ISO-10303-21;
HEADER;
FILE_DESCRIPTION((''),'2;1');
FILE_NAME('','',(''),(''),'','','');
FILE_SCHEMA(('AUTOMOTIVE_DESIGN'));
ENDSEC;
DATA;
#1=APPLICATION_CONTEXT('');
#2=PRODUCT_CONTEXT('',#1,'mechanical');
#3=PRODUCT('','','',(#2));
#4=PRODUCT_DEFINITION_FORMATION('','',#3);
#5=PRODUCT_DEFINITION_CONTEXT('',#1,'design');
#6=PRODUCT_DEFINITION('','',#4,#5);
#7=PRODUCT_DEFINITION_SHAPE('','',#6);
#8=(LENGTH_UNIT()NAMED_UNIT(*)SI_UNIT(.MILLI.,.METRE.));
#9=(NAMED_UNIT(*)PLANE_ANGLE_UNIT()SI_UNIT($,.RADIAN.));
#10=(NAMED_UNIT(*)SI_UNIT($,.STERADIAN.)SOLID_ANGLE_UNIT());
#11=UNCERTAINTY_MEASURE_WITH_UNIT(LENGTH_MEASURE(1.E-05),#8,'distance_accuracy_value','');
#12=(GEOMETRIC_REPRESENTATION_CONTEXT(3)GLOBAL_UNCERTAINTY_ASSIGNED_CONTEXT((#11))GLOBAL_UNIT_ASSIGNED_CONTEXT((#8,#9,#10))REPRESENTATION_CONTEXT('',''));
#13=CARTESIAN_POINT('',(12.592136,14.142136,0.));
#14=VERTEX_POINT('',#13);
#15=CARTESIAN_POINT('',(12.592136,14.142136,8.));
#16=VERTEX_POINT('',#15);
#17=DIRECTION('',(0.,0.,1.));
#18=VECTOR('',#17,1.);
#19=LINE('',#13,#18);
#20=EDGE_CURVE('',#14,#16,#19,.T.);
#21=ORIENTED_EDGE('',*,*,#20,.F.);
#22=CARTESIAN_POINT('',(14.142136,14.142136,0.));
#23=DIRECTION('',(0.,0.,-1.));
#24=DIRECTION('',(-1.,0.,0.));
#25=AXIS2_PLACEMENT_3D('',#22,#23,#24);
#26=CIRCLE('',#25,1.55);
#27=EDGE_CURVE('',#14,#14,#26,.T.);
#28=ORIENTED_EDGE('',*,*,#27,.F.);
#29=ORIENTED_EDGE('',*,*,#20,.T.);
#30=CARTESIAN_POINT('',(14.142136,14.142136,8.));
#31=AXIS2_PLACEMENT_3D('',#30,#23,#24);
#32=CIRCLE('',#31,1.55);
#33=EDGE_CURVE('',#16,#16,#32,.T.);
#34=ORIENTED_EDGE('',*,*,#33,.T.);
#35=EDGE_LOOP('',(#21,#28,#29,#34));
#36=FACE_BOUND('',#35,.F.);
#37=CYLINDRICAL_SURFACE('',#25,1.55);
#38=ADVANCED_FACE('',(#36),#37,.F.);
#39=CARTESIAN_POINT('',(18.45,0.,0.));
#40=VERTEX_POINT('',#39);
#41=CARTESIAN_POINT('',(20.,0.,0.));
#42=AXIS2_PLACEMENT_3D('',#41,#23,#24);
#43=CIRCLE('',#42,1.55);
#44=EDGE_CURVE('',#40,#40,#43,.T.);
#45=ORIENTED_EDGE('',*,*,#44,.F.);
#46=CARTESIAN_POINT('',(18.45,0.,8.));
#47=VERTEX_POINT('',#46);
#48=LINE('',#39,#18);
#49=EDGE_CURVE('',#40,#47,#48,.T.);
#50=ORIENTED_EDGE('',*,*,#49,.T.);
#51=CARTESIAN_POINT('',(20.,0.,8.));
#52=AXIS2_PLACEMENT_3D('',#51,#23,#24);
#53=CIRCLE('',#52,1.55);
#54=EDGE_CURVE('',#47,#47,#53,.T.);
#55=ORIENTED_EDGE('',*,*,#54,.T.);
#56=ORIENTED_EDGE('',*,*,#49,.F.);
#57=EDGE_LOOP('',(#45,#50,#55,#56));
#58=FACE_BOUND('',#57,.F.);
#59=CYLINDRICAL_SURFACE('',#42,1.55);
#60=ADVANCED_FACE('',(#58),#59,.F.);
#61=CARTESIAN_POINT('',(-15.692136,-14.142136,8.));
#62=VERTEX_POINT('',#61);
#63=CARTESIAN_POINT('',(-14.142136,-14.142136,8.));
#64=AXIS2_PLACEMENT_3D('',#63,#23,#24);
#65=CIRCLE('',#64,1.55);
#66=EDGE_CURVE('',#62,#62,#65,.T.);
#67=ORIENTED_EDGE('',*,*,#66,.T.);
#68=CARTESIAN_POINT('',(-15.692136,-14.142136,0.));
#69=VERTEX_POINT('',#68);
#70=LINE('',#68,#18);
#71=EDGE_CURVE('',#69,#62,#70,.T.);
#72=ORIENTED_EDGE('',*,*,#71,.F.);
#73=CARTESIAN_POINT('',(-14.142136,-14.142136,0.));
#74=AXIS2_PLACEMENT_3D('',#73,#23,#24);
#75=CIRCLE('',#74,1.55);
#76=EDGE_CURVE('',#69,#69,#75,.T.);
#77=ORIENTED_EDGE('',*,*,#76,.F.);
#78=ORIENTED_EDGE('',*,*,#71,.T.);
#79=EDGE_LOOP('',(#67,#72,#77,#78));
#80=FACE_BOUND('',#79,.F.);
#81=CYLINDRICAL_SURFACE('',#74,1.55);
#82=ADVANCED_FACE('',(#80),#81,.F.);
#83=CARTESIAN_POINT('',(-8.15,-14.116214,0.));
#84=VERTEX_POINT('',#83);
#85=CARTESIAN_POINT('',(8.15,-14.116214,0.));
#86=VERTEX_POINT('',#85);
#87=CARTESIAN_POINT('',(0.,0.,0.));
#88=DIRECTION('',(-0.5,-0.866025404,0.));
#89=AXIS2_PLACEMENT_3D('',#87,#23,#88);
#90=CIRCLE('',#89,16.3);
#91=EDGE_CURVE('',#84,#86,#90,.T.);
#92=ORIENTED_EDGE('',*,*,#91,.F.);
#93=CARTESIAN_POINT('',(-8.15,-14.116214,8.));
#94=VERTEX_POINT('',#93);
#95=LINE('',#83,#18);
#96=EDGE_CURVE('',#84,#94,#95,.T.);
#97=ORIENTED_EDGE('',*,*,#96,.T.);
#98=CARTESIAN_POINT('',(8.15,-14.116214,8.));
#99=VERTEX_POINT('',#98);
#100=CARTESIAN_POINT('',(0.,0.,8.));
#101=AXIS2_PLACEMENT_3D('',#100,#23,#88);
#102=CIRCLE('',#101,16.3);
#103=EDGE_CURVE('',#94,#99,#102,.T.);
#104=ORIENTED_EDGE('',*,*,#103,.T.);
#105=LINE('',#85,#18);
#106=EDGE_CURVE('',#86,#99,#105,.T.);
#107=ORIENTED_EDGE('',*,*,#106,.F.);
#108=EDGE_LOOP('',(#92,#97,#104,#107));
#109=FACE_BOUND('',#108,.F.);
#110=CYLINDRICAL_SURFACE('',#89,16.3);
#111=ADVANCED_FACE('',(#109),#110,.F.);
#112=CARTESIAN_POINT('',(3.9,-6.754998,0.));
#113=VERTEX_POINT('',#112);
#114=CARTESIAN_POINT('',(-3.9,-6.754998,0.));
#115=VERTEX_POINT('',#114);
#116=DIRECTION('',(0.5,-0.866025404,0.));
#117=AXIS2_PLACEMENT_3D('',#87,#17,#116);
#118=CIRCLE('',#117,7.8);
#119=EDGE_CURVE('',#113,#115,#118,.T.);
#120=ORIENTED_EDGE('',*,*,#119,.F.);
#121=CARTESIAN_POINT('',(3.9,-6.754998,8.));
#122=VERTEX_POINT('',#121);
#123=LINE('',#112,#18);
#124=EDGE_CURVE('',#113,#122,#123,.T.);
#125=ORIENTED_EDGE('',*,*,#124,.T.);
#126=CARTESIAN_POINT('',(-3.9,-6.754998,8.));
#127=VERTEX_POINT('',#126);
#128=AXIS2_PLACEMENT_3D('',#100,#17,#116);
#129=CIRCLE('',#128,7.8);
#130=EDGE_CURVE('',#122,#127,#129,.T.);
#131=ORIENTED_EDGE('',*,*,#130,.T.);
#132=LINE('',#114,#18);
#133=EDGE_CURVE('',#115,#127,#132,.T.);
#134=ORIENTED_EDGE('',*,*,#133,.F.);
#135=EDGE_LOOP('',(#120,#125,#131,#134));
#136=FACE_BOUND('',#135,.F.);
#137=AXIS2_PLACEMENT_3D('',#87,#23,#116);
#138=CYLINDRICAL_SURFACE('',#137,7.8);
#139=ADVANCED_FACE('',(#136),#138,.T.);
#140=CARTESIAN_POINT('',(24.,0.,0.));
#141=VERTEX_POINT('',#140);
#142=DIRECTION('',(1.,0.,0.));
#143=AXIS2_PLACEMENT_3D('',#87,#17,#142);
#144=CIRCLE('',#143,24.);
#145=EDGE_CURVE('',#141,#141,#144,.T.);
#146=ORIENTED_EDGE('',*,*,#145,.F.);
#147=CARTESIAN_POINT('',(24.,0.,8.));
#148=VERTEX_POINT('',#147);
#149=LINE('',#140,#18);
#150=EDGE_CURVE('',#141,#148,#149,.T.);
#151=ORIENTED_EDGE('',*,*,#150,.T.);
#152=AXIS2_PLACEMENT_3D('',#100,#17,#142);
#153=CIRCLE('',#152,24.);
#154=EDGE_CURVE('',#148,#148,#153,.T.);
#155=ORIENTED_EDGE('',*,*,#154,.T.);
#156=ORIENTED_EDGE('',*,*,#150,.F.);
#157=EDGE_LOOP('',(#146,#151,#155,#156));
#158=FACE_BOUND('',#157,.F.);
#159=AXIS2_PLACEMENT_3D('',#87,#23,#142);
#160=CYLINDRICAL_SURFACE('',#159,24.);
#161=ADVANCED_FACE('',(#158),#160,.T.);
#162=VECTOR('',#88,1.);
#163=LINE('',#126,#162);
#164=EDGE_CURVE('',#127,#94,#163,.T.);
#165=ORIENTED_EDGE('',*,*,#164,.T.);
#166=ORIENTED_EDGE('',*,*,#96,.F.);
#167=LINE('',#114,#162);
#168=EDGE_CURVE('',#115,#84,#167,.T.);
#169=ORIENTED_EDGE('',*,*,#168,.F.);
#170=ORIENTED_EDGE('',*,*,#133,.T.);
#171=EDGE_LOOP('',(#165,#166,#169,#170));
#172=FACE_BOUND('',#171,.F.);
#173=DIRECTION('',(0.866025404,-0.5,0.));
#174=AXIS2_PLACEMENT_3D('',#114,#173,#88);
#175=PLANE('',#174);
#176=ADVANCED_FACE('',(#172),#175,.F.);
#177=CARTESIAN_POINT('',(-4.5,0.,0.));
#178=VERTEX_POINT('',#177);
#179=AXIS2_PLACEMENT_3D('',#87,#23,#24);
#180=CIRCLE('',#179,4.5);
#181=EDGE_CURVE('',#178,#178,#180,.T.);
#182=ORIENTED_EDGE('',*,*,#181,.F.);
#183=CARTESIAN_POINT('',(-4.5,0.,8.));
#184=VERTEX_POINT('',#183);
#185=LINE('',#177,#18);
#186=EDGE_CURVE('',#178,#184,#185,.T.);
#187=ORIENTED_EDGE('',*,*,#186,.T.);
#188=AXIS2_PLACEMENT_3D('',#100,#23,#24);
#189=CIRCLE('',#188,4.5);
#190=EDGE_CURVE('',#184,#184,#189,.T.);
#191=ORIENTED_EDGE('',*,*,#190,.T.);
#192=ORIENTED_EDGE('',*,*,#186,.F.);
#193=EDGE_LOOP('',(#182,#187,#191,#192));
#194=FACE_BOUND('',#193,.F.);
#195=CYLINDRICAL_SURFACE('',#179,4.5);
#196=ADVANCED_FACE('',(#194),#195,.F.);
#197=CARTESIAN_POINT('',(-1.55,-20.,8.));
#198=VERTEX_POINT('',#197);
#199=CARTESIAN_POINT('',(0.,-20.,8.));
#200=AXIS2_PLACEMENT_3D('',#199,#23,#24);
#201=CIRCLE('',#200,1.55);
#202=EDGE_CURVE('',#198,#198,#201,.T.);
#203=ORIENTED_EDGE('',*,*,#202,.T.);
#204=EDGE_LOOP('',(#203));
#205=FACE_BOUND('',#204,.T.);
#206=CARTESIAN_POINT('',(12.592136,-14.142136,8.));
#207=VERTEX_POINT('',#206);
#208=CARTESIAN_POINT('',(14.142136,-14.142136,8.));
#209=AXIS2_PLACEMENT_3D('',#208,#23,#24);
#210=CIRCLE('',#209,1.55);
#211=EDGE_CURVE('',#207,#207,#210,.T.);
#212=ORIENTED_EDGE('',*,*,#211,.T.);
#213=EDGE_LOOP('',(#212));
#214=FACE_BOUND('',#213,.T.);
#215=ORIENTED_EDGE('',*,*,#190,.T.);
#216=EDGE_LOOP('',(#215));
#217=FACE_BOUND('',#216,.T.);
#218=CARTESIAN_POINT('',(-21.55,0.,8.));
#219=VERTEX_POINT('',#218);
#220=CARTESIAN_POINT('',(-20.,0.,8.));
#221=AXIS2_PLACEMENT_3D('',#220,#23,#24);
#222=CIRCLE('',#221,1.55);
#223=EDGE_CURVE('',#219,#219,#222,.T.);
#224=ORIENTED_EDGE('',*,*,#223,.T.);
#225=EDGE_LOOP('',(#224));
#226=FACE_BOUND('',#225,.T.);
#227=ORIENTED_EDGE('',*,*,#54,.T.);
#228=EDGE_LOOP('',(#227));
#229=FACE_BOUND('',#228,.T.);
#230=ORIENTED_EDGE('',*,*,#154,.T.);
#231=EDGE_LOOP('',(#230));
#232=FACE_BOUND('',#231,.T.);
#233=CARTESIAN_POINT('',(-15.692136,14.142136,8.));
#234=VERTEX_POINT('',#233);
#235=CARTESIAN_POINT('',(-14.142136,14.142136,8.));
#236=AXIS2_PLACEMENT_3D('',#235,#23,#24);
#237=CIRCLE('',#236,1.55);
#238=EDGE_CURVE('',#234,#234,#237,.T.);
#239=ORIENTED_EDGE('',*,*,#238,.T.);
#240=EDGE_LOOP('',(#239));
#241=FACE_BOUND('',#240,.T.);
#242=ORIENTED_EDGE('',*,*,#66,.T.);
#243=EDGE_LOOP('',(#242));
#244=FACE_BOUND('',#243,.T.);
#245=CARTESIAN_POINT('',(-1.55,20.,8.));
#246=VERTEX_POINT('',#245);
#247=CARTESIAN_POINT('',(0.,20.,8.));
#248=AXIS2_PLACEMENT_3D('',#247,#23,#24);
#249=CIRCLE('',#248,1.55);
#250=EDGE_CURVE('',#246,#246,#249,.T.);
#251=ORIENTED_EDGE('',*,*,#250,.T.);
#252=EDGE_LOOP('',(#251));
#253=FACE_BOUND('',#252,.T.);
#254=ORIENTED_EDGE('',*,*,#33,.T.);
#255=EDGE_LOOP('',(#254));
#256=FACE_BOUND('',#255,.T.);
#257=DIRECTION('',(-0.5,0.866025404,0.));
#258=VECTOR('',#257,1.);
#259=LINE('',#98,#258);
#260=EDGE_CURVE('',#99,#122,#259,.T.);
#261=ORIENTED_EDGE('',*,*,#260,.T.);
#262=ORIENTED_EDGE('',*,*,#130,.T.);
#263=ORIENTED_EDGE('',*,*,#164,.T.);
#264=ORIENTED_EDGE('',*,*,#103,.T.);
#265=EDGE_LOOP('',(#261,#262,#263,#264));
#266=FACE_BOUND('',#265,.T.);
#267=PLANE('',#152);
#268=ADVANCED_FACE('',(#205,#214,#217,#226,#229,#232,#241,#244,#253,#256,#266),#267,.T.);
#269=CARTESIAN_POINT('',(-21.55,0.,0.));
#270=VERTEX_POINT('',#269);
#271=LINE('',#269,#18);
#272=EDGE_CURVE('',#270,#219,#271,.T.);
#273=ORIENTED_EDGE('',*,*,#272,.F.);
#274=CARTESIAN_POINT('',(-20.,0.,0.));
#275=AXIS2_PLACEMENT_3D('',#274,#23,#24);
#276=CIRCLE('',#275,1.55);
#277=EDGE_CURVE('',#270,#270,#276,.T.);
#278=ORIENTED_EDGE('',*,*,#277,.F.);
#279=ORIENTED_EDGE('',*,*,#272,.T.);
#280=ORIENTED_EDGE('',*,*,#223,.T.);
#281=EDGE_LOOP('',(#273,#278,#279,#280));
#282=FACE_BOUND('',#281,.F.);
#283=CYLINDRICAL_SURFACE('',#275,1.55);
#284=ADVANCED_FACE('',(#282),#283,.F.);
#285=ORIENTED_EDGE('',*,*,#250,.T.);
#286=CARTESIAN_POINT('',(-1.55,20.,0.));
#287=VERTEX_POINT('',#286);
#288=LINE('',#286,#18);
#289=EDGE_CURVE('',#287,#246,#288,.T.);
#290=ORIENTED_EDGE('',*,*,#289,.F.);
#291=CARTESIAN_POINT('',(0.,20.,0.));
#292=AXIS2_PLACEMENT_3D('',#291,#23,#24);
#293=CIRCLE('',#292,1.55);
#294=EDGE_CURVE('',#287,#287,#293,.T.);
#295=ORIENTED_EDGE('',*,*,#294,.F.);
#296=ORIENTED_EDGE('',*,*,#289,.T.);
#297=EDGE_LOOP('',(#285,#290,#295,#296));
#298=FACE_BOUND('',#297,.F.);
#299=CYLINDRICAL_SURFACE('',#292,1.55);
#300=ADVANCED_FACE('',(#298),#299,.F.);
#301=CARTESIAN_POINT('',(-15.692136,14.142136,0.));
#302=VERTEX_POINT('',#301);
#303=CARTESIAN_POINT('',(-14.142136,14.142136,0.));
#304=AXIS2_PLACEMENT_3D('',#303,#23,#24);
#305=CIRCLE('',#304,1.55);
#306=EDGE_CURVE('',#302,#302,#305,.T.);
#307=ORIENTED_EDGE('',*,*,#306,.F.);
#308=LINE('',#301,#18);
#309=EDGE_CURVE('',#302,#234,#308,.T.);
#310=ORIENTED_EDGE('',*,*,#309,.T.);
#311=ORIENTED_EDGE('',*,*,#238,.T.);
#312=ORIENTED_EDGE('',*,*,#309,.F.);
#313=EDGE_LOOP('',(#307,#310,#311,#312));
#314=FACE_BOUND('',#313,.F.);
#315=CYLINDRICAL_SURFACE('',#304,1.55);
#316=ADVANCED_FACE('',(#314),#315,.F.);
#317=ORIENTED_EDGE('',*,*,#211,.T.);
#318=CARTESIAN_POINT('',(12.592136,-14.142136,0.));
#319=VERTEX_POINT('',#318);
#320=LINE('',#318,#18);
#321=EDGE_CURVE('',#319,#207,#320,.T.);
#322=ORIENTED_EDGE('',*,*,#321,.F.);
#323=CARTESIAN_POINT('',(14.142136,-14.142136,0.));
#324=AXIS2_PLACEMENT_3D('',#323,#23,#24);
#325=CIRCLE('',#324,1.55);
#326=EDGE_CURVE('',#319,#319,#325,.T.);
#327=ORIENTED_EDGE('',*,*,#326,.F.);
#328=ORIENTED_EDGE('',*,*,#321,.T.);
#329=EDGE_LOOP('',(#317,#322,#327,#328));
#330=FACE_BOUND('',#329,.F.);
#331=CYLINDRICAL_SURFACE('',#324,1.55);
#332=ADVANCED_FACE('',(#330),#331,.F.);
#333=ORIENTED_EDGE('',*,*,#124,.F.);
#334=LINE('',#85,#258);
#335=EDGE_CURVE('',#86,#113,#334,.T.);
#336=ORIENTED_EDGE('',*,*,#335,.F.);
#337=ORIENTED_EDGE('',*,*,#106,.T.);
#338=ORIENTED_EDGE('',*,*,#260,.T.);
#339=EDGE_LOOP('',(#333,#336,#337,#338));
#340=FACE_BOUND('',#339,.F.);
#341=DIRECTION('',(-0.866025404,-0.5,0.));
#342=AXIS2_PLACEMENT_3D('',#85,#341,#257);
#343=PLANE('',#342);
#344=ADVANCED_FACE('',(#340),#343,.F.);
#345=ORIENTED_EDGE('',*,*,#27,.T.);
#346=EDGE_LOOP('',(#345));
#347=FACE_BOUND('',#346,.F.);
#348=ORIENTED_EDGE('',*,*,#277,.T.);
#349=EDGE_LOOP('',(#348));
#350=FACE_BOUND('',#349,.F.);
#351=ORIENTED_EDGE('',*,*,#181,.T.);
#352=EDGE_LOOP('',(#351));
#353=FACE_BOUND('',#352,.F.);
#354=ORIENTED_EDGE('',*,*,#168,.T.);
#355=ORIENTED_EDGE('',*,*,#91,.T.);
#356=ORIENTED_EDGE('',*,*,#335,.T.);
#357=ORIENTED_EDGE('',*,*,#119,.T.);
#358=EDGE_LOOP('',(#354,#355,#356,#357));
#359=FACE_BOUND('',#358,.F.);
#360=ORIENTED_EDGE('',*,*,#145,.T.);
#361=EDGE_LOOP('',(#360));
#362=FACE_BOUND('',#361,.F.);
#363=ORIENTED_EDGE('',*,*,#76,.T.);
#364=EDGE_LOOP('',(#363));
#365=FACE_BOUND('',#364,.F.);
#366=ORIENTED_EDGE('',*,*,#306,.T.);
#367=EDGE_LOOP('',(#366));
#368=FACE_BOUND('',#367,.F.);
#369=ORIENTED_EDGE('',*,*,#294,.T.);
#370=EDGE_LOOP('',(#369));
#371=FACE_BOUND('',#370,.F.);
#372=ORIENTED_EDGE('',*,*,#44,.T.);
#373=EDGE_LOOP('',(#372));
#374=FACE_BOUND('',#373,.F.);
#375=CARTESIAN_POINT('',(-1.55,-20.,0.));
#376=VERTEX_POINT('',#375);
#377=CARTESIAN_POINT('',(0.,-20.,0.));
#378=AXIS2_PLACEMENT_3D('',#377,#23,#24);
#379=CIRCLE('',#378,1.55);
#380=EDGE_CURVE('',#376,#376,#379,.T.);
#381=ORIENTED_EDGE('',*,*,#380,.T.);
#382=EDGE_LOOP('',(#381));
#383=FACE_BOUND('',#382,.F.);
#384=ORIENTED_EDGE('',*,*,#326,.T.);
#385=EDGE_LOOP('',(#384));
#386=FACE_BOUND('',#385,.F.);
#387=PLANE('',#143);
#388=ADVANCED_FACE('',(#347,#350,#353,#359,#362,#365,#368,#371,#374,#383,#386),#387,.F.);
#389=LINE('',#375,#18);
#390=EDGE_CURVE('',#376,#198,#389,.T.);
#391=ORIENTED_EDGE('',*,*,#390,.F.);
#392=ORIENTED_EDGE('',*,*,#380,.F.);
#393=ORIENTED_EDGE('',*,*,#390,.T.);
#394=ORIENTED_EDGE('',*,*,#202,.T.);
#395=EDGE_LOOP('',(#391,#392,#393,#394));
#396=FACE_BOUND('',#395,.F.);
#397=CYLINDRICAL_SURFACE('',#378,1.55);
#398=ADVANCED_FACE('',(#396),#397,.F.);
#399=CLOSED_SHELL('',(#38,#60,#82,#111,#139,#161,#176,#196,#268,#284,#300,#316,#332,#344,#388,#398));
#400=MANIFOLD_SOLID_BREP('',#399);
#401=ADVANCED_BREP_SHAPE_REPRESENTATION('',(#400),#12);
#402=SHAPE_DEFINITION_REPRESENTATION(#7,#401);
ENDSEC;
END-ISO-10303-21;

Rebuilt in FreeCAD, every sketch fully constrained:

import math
import FreeCAD as App
import Part
import Sketcher

V = App.Vector
Q = App.Units.Quantity

doc = App.newDocument("Part")
body = doc.addObject("PartDesign::Body", "Body")

sketch1 = body.newObject("Sketcher::SketchObject", "Sketch")
sketch1.AttachmentSupport = (doc.getObject("XY_Plane"), [""])
sketch1.MapMode = "FlatFace"
sketch1.addGeometry(Part.Circle(V(0, 0, 0), V(0, 0, 1), 24), False)
sketch1.addConstraint(Sketcher.Constraint("Coincident", 0, 3, -1, 1))
sketch1.addConstraint(Sketcher.Constraint("Diameter", 0, 48.0))
pad1 = body.newObject("PartDesign::Pad", "Pad")
pad1.Profile = sketch1
pad1.Length = 8

sketch2 = body.newObject("Sketcher::SketchObject", "Sketch001")
sketch2.AttachmentSupport = (doc.getObject("XY_Plane"), [""])
sketch2.MapMode = "FlatFace"
sketch2.addGeometry(Part.LineSegment(V(-8.15, -14.116214, 0), V(-3.9, -6.754998, 0)), False)
sketch2.addGeometry(Part.ArcOfCircle(Part.Circle(V(0, 0, 0), V(0, 0, 1), 7.8), math.radians(-60), math.radians(240)), False)
sketch2.addGeometry(Part.LineSegment(V(3.9, -6.754998, 0), V(8.15, -14.116214, 0)), False)
sketch2.addGeometry(Part.ArcOfCircle(Part.Circle(V(0, 0, 0), V(0, 0, 1), 16.3), math.radians(-60), math.radians(240)), False)
sketch2.addConstraint(Sketcher.Constraint("Coincident", 0, 2, 1, 2))
sketch2.addConstraint(Sketcher.Constraint("Coincident", 1, 1, 2, 1))
sketch2.addConstraint(Sketcher.Constraint("Coincident", 2, 2, 3, 1))
sketch2.addConstraint(Sketcher.Constraint("Coincident", 3, 2, 0, 1))
sketch2.addConstraint(Sketcher.Constraint("Coincident", 1, 3, -1, 1))
sketch2.addConstraint(Sketcher.Constraint("Coincident", 3, 3, -1, 1))
sketch2.addConstraint(Sketcher.Constraint("Horizontal", 0, 2, 1, 1))
sketch2.addConstraint(Sketcher.Constraint("Horizontal", 2, 2, 3, 2))
sketch2.addConstraint(Sketcher.Constraint("Radius", 1, 7.8))
sketch2.addConstraint(Sketcher.Constraint("Radius", 3, 16.3))
sketch2.addConstraint(Sketcher.Constraint("Angle", 0, Q("60 deg")))
sketch2.addConstraint(Sketcher.Constraint("DistanceX", 0, 2, -1, 1, 3.9))
pocket1 = body.newObject("PartDesign::Pocket", "Pocket")
pocket1.Profile = sketch2
pocket1.Length = 8
pocket1.Reversed = True

sketch3 = body.newObject("Sketcher::SketchObject", "Sketch002")
sketch3.AttachmentSupport = (doc.getObject("XY_Plane"), [""])
sketch3.MapMode = "FlatFace"
sketch3.addGeometry(Part.Circle(V(0, 0, 0), V(0, 0, 1), 4.5), False)
sketch3.addConstraint(Sketcher.Constraint("Coincident", 0, 3, -1, 1))
sketch3.addConstraint(Sketcher.Constraint("Diameter", 0, 9.0))
pocket2 = body.newObject("PartDesign::Pocket", "Pocket001")
pocket2.Profile = sketch3
pocket2.Length = 8
pocket2.Reversed = True

sketch4 = body.newObject("Sketcher::SketchObject", "Sketch003")
sketch4.AttachmentSupport = (doc.getObject("XY_Plane"), [""])
sketch4.MapMode = "FlatFace"
sketch4.addGeometry(Part.Circle(V(0, 20, 0), V(0, 0, 1), 1.55), False)
sketch4.addGeometry(Part.Circle(V(-14.142136, 14.142136, 0), V(0, 0, 1), 1.55), False)
sketch4.addGeometry(Part.Circle(V(-20, 0, 0), V(0, 0, 1), 1.55), False)
sketch4.addGeometry(Part.Circle(V(-14.142136, -14.142136, 0), V(0, 0, 1), 1.55), False)
sketch4.addGeometry(Part.Circle(V(0, -20, 0), V(0, 0, 1), 1.55), False)
sketch4.addGeometry(Part.Circle(V(14.142136, -14.142136, 0), V(0, 0, 1), 1.55), False)
sketch4.addGeometry(Part.Circle(V(20, 0, 0), V(0, 0, 1), 1.55), False)
sketch4.addGeometry(Part.Circle(V(14.142136, 14.142136, 0), V(0, 0, 1), 1.55), False)
sketch4.addConstraint(Sketcher.Constraint("Equal", 0, 1))
sketch4.addConstraint(Sketcher.Constraint("Equal", 1, 2))
sketch4.addConstraint(Sketcher.Constraint("Equal", 2, 3))
sketch4.addConstraint(Sketcher.Constraint("Equal", 3, 4))
sketch4.addConstraint(Sketcher.Constraint("Equal", 4, 5))
sketch4.addConstraint(Sketcher.Constraint("Equal", 5, 6))
sketch4.addConstraint(Sketcher.Constraint("Equal", 6, 7))
sketch4.addConstraint(Sketcher.Constraint("Symmetric", 0, 3, 4, 3, -1, 1))
sketch4.addConstraint(Sketcher.Constraint("Symmetric", 1, 3, 5, 3, -1, 1))
sketch4.addConstraint(Sketcher.Constraint("Symmetric", 2, 3, 6, 3, -1, 1))
sketch4.addConstraint(Sketcher.Constraint("Symmetric", 3, 3, 7, 3, -1, 1))
sketch4.addConstraint(Sketcher.Constraint("Symmetric", 3, 3, 5, 3, -2))
sketch4.addConstraint(Sketcher.Constraint("PointOnObject", 0, 3, -2))
sketch4.addConstraint(Sketcher.Constraint("PointOnObject", 2, 3, -1))
sketch4.addConstraint(Sketcher.Constraint("Diameter", 0, 3.1))
sketch4.addConstraint(Sketcher.Constraint("DistanceY", -1, 1, 0, 3, 20.0))
sketch4.addConstraint(Sketcher.Constraint("DistanceX", 2, 3, -1, 1, 20.0))
sketch4.addConstraint(Sketcher.Constraint("DistanceY", 3, 3, 1, 3, 28.284271))
sketch4.addConstraint(Sketcher.Constraint("DistanceX", 3, 3, 5, 3, 28.284271))
pocket3 = body.newObject("PartDesign::Pocket", "Pocket002")
pocket3.Profile = sketch4
pocket3.Length = 8
pocket3.Reversed = True

doc.recompute()
